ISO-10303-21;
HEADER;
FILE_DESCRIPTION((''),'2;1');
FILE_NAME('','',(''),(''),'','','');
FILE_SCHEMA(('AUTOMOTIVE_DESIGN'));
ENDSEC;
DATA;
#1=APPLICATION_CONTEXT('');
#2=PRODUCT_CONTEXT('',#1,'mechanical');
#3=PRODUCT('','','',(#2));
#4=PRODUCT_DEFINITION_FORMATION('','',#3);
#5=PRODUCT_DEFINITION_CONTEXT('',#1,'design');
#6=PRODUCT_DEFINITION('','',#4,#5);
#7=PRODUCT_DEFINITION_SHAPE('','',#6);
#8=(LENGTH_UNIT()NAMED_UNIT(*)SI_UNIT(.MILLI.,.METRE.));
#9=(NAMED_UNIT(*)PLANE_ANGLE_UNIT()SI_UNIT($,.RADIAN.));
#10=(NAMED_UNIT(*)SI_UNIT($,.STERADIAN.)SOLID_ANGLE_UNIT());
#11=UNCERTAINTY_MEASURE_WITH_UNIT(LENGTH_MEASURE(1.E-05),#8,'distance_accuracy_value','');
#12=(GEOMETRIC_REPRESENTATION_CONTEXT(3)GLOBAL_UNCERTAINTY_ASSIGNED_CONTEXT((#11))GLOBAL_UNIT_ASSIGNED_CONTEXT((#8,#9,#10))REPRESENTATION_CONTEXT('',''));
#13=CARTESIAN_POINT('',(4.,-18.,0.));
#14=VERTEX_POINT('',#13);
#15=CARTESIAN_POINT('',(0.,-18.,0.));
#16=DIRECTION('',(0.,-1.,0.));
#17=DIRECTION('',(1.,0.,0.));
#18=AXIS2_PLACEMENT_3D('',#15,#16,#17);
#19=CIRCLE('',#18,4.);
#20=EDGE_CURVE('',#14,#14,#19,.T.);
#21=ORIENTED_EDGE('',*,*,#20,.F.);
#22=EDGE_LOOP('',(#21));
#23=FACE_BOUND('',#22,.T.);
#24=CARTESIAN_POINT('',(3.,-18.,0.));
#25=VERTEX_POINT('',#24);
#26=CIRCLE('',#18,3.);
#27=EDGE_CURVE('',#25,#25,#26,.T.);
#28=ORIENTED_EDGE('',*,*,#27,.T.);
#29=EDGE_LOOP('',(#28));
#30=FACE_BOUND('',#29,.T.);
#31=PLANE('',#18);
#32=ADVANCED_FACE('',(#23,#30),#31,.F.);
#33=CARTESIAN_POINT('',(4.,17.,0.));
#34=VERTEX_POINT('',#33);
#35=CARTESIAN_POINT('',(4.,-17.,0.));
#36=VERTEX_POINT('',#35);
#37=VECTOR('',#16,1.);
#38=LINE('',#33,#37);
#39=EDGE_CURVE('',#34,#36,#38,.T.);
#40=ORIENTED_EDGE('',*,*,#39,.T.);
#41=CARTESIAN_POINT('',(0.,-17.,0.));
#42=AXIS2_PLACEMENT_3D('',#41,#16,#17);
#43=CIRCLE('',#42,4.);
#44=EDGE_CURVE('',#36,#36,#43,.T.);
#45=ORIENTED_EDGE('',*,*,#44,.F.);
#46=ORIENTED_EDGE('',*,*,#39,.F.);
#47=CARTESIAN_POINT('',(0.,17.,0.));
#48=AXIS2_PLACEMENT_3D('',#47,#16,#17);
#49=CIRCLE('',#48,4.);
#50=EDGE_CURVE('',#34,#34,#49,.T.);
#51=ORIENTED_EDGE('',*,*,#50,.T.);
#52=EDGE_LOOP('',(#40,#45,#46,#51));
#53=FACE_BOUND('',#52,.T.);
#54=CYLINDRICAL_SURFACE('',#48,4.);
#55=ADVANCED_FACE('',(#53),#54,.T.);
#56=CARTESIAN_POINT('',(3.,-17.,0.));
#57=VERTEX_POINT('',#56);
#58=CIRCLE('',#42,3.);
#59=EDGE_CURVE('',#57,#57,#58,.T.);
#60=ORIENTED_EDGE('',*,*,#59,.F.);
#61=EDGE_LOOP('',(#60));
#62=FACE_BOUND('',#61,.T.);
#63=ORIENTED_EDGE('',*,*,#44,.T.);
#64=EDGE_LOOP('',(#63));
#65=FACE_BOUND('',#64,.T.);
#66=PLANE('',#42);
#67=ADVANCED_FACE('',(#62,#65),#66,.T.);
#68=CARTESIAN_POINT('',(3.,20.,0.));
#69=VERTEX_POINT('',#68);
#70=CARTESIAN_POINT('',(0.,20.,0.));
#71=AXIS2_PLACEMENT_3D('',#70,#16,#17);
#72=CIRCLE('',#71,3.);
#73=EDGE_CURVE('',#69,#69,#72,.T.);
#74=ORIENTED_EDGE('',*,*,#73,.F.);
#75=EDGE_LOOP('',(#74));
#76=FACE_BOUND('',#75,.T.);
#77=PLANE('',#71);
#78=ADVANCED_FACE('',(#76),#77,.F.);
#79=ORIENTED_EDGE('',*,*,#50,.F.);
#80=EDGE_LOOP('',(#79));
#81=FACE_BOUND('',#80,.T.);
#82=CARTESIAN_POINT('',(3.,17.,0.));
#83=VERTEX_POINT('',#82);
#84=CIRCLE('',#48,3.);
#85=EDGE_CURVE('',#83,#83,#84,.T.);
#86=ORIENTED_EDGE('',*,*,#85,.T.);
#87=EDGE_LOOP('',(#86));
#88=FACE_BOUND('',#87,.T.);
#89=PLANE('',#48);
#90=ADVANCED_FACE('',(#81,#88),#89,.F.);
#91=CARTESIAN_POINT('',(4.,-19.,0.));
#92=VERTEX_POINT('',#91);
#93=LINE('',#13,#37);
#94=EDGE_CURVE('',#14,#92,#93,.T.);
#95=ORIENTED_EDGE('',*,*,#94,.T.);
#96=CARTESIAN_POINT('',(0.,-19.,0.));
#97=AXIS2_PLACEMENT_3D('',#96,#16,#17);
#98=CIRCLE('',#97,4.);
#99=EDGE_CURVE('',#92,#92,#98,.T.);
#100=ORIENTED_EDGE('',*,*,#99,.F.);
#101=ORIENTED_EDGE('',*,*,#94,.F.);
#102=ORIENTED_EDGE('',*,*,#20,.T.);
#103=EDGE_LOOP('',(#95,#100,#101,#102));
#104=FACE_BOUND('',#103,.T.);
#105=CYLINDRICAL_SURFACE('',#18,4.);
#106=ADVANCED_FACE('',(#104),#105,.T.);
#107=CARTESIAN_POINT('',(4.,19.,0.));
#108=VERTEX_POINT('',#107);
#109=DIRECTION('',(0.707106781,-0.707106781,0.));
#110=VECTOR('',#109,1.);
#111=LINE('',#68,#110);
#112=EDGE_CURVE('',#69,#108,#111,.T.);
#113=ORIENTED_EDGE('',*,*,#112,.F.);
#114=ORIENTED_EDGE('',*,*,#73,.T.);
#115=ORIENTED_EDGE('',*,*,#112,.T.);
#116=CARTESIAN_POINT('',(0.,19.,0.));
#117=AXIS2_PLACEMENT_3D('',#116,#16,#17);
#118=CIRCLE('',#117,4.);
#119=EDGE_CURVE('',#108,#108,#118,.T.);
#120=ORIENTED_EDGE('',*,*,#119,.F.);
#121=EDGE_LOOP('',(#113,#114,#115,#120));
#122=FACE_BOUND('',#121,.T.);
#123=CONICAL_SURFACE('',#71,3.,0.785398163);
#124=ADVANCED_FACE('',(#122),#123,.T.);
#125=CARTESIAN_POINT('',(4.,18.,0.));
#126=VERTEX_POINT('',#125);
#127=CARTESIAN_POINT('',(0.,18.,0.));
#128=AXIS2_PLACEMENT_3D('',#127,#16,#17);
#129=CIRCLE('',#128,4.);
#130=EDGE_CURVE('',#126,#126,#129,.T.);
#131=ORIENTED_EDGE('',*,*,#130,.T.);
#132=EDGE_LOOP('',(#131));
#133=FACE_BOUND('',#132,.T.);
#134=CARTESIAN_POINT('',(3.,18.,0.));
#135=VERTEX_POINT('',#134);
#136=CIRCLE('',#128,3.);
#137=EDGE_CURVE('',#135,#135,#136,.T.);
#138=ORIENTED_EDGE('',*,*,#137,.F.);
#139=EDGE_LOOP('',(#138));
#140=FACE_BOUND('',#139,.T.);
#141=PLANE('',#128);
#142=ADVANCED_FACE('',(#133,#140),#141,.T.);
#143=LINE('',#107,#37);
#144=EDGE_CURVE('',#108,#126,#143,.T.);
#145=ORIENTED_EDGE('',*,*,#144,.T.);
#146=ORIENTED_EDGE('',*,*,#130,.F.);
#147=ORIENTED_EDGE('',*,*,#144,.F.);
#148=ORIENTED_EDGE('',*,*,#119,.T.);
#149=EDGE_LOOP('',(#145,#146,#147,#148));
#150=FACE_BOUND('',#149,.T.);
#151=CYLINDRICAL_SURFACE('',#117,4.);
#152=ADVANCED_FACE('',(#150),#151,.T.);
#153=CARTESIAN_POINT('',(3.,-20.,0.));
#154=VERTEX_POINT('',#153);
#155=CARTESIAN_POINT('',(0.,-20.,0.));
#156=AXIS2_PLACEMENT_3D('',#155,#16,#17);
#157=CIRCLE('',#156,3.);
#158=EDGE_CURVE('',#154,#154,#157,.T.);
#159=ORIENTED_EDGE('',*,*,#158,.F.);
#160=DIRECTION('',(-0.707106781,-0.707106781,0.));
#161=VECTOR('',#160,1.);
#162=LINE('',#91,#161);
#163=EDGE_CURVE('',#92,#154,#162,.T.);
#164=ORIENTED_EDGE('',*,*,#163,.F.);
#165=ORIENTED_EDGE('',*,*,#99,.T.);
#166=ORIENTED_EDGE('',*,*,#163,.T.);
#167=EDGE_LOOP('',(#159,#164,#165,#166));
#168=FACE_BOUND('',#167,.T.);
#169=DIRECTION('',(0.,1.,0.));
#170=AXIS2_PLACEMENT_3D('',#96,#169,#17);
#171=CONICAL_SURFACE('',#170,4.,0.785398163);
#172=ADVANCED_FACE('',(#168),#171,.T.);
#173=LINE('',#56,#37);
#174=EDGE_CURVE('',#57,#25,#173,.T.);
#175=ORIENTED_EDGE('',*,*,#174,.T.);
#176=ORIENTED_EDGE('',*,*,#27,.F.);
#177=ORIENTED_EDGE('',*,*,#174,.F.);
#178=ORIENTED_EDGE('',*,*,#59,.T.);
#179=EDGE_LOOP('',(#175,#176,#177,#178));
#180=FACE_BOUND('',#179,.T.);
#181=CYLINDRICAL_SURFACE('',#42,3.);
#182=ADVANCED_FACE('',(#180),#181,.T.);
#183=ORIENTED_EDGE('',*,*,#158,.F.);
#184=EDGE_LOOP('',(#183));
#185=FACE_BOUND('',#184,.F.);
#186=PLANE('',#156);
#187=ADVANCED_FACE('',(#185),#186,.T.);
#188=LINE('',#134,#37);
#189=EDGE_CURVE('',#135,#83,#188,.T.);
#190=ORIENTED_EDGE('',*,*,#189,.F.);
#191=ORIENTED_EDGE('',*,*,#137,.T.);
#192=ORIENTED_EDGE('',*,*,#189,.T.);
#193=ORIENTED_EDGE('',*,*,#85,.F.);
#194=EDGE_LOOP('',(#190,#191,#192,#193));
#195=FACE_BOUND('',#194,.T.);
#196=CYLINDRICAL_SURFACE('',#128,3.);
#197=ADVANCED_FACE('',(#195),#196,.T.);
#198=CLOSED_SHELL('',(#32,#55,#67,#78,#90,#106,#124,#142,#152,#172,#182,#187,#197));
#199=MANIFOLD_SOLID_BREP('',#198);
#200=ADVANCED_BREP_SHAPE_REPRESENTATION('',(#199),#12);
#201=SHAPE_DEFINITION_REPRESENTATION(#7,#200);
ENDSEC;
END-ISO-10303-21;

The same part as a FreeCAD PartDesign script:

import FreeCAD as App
import Part
import Sketcher
from FreeCAD import Vector


def add_polygon(sketch, points):
    """Adds a closed chain of lines whose ends are joined by coincident constraints."""
    first, n = sketch.GeometryCount, len(points)
    for a, b in zip(points, points[1:] + points[:1]):
        sketch.addGeometry(Part.LineSegment(App.Vector(*a, 0), App.Vector(*b, 0)), False)
    for i in range(n):
        sketch.addConstraint(Sketcher.Constraint("Coincident", first + i, 2, first + (i + 1) % n, 1))

doc = App.newDocument("Part")
body = doc.addObject("PartDesign::Body", "Body")

# Sketch on XY plane
sketch1 = doc.addObject("Sketcher::SketchObject", "Sketch")
body.addObject(sketch1)
sketch1.AttachmentSupport = (doc.XY_Plane, [""])
sketch1.MapMode = "FlatFace"
add_polygon(sketch1, [(4, 17), (3, 17), (3, 18), (4, 18), (4, 19), (3, 20), (0, 20), (0, -20), (3, -20), (4, -19), (4, -18), (3, -18), (3, -17), (4, -17)])  # lines 0-13
sketch1.addConstraint([
    Sketcher.Constraint("Horizontal", 0),
    Sketcher.Constraint("Vertical", 1),
    Sketcher.Constraint("Horizontal", 2),
    Sketcher.Constraint("Vertical", 3),
    Sketcher.Constraint("Horizontal", 5),
    Sketcher.Constraint("Vertical", 6),
    Sketcher.Constraint("Horizontal", 7),
    Sketcher.Constraint("Vertical", 9),
    Sketcher.Constraint("Horizontal", 10),
    Sketcher.Constraint("Vertical", 11),
    Sketcher.Constraint("Horizontal", 12),
    Sketcher.Constraint("Vertical", 13),
    Sketcher.Constraint("Symmetric", 5, 2, 6, 2, -1, 1),
    Sketcher.Constraint("Symmetric", 3, 2, 8, 2, -1),
    Sketcher.Constraint("Symmetric", 1, 2, 10, 2, -1),
    Sketcher.Constraint("Perpendicular", 4, 8),
    Sketcher.Constraint("Vertical", 1, 2, 4, 2),
    Sketcher.Constraint("Vertical", 4, 2, 7, 2),
    Sketcher.Constraint("Vertical", 9, 2, 12, 2),
    Sketcher.Constraint("Equal", 12, 1),
    Sketcher.Constraint("Equal", 1, 3),
    Sketcher.Constraint("Equal", 9, 11),
    Sketcher.Constraint("DistanceX", 0, 2, 0, 1, 1.0),
    Sketcher.Constraint("DistanceY", 8, 2, 0, 2, 36.0),
    Sketcher.Constraint("DistanceX", 5, 2, 5, 1, 3.0),
])
revolution = doc.addObject("PartDesign::Revolution", "Revolution")
body.addObject(revolution)
revolution.Profile = sketch1
revolution.ReferenceAxis = (sketch1, ["V_Axis"])
revolution.Angle = 360

doc.recompute()
